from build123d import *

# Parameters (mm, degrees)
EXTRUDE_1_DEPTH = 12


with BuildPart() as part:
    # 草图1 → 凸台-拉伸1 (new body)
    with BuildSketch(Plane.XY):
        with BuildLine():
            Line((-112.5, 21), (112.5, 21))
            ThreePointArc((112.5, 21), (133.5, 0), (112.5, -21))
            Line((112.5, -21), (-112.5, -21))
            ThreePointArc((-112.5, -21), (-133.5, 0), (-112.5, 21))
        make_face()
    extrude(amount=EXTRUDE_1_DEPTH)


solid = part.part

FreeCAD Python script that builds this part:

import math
import FreeCAD as App
import Part
import Sketcher
from FreeCAD import Vector
Q = App.Units.Quantity

doc = App.newDocument("Part")
params = doc.addObject("Spreadsheet::Sheet", "Params")
for row, (alias, value) in enumerate([
    ("sketch1_radius", "21 mm"),
    ("sketch1_width", "225 mm"),
    ("pad1_length", "12 mm"),
], start=1):
    params.set(f"A{row}", alias)
    params.set(f"B{row}", "=" + value)
    params.setAlias(f"B{row}", alias)

body = doc.addObject("PartDesign::Body", "Body")

sketch1 = body.newObject("Sketcher::SketchObject", "Sketch")
sketch1.AttachmentSupport = (doc.getObject("XY_Plane"), [""])
sketch1.MapMode = "FlatFace"
sketch1.addGeometry([
    Part.LineSegment(Vector(112, 21, 0), Vector(-112, 21, 0)),
    Part.ArcOfCircle(Part.Circle(Vector(-112, 0, 0), Vector(0, 0, 1), 21), math.radians(90), math.radians(270)),
    Part.LineSegment(Vector(-112, -21, 0), Vector(112, -21, 0)),
    Part.ArcOfCircle(Part.Circle(Vector(112, 0, 0), Vector(0, 0, 1), 21), math.radians(-90), math.radians(90)),
], False)
sketch1.addConstraint([
    Sketcher.Constraint("Tangent", 0, 2, 1, 1),
    Sketcher.Constraint("Tangent", 1, 2, 2, 1),
    Sketcher.Constraint("Tangent", 2, 2, 3, 1),
    Sketcher.Constraint("Tangent", 3, 2, 0, 1),
    Sketcher.Constraint("Horizontal", 0),
    Sketcher.Constraint("Horizontal", 2),
    Sketcher.Constraint("Symmetric", 1, 3, 3, 3, -1, 1),
    Sketcher.Constraint("Radius", 1, Q("21 mm")),
    Sketcher.Constraint("DistanceX", 0, 2, 0, 1, Q("225 mm")),
])
sketch1.setExpression("Constraints[7]", "Params.sketch1_radius")
sketch1.setExpression("Constraints[8]", "Params.sketch1_width")
pad1 = body.newObject("PartDesign::Pad", "Pad")
pad1.Profile = sketch1
pad1.setExpression("Length", "Params.pad1_length")

doc.recompute()
